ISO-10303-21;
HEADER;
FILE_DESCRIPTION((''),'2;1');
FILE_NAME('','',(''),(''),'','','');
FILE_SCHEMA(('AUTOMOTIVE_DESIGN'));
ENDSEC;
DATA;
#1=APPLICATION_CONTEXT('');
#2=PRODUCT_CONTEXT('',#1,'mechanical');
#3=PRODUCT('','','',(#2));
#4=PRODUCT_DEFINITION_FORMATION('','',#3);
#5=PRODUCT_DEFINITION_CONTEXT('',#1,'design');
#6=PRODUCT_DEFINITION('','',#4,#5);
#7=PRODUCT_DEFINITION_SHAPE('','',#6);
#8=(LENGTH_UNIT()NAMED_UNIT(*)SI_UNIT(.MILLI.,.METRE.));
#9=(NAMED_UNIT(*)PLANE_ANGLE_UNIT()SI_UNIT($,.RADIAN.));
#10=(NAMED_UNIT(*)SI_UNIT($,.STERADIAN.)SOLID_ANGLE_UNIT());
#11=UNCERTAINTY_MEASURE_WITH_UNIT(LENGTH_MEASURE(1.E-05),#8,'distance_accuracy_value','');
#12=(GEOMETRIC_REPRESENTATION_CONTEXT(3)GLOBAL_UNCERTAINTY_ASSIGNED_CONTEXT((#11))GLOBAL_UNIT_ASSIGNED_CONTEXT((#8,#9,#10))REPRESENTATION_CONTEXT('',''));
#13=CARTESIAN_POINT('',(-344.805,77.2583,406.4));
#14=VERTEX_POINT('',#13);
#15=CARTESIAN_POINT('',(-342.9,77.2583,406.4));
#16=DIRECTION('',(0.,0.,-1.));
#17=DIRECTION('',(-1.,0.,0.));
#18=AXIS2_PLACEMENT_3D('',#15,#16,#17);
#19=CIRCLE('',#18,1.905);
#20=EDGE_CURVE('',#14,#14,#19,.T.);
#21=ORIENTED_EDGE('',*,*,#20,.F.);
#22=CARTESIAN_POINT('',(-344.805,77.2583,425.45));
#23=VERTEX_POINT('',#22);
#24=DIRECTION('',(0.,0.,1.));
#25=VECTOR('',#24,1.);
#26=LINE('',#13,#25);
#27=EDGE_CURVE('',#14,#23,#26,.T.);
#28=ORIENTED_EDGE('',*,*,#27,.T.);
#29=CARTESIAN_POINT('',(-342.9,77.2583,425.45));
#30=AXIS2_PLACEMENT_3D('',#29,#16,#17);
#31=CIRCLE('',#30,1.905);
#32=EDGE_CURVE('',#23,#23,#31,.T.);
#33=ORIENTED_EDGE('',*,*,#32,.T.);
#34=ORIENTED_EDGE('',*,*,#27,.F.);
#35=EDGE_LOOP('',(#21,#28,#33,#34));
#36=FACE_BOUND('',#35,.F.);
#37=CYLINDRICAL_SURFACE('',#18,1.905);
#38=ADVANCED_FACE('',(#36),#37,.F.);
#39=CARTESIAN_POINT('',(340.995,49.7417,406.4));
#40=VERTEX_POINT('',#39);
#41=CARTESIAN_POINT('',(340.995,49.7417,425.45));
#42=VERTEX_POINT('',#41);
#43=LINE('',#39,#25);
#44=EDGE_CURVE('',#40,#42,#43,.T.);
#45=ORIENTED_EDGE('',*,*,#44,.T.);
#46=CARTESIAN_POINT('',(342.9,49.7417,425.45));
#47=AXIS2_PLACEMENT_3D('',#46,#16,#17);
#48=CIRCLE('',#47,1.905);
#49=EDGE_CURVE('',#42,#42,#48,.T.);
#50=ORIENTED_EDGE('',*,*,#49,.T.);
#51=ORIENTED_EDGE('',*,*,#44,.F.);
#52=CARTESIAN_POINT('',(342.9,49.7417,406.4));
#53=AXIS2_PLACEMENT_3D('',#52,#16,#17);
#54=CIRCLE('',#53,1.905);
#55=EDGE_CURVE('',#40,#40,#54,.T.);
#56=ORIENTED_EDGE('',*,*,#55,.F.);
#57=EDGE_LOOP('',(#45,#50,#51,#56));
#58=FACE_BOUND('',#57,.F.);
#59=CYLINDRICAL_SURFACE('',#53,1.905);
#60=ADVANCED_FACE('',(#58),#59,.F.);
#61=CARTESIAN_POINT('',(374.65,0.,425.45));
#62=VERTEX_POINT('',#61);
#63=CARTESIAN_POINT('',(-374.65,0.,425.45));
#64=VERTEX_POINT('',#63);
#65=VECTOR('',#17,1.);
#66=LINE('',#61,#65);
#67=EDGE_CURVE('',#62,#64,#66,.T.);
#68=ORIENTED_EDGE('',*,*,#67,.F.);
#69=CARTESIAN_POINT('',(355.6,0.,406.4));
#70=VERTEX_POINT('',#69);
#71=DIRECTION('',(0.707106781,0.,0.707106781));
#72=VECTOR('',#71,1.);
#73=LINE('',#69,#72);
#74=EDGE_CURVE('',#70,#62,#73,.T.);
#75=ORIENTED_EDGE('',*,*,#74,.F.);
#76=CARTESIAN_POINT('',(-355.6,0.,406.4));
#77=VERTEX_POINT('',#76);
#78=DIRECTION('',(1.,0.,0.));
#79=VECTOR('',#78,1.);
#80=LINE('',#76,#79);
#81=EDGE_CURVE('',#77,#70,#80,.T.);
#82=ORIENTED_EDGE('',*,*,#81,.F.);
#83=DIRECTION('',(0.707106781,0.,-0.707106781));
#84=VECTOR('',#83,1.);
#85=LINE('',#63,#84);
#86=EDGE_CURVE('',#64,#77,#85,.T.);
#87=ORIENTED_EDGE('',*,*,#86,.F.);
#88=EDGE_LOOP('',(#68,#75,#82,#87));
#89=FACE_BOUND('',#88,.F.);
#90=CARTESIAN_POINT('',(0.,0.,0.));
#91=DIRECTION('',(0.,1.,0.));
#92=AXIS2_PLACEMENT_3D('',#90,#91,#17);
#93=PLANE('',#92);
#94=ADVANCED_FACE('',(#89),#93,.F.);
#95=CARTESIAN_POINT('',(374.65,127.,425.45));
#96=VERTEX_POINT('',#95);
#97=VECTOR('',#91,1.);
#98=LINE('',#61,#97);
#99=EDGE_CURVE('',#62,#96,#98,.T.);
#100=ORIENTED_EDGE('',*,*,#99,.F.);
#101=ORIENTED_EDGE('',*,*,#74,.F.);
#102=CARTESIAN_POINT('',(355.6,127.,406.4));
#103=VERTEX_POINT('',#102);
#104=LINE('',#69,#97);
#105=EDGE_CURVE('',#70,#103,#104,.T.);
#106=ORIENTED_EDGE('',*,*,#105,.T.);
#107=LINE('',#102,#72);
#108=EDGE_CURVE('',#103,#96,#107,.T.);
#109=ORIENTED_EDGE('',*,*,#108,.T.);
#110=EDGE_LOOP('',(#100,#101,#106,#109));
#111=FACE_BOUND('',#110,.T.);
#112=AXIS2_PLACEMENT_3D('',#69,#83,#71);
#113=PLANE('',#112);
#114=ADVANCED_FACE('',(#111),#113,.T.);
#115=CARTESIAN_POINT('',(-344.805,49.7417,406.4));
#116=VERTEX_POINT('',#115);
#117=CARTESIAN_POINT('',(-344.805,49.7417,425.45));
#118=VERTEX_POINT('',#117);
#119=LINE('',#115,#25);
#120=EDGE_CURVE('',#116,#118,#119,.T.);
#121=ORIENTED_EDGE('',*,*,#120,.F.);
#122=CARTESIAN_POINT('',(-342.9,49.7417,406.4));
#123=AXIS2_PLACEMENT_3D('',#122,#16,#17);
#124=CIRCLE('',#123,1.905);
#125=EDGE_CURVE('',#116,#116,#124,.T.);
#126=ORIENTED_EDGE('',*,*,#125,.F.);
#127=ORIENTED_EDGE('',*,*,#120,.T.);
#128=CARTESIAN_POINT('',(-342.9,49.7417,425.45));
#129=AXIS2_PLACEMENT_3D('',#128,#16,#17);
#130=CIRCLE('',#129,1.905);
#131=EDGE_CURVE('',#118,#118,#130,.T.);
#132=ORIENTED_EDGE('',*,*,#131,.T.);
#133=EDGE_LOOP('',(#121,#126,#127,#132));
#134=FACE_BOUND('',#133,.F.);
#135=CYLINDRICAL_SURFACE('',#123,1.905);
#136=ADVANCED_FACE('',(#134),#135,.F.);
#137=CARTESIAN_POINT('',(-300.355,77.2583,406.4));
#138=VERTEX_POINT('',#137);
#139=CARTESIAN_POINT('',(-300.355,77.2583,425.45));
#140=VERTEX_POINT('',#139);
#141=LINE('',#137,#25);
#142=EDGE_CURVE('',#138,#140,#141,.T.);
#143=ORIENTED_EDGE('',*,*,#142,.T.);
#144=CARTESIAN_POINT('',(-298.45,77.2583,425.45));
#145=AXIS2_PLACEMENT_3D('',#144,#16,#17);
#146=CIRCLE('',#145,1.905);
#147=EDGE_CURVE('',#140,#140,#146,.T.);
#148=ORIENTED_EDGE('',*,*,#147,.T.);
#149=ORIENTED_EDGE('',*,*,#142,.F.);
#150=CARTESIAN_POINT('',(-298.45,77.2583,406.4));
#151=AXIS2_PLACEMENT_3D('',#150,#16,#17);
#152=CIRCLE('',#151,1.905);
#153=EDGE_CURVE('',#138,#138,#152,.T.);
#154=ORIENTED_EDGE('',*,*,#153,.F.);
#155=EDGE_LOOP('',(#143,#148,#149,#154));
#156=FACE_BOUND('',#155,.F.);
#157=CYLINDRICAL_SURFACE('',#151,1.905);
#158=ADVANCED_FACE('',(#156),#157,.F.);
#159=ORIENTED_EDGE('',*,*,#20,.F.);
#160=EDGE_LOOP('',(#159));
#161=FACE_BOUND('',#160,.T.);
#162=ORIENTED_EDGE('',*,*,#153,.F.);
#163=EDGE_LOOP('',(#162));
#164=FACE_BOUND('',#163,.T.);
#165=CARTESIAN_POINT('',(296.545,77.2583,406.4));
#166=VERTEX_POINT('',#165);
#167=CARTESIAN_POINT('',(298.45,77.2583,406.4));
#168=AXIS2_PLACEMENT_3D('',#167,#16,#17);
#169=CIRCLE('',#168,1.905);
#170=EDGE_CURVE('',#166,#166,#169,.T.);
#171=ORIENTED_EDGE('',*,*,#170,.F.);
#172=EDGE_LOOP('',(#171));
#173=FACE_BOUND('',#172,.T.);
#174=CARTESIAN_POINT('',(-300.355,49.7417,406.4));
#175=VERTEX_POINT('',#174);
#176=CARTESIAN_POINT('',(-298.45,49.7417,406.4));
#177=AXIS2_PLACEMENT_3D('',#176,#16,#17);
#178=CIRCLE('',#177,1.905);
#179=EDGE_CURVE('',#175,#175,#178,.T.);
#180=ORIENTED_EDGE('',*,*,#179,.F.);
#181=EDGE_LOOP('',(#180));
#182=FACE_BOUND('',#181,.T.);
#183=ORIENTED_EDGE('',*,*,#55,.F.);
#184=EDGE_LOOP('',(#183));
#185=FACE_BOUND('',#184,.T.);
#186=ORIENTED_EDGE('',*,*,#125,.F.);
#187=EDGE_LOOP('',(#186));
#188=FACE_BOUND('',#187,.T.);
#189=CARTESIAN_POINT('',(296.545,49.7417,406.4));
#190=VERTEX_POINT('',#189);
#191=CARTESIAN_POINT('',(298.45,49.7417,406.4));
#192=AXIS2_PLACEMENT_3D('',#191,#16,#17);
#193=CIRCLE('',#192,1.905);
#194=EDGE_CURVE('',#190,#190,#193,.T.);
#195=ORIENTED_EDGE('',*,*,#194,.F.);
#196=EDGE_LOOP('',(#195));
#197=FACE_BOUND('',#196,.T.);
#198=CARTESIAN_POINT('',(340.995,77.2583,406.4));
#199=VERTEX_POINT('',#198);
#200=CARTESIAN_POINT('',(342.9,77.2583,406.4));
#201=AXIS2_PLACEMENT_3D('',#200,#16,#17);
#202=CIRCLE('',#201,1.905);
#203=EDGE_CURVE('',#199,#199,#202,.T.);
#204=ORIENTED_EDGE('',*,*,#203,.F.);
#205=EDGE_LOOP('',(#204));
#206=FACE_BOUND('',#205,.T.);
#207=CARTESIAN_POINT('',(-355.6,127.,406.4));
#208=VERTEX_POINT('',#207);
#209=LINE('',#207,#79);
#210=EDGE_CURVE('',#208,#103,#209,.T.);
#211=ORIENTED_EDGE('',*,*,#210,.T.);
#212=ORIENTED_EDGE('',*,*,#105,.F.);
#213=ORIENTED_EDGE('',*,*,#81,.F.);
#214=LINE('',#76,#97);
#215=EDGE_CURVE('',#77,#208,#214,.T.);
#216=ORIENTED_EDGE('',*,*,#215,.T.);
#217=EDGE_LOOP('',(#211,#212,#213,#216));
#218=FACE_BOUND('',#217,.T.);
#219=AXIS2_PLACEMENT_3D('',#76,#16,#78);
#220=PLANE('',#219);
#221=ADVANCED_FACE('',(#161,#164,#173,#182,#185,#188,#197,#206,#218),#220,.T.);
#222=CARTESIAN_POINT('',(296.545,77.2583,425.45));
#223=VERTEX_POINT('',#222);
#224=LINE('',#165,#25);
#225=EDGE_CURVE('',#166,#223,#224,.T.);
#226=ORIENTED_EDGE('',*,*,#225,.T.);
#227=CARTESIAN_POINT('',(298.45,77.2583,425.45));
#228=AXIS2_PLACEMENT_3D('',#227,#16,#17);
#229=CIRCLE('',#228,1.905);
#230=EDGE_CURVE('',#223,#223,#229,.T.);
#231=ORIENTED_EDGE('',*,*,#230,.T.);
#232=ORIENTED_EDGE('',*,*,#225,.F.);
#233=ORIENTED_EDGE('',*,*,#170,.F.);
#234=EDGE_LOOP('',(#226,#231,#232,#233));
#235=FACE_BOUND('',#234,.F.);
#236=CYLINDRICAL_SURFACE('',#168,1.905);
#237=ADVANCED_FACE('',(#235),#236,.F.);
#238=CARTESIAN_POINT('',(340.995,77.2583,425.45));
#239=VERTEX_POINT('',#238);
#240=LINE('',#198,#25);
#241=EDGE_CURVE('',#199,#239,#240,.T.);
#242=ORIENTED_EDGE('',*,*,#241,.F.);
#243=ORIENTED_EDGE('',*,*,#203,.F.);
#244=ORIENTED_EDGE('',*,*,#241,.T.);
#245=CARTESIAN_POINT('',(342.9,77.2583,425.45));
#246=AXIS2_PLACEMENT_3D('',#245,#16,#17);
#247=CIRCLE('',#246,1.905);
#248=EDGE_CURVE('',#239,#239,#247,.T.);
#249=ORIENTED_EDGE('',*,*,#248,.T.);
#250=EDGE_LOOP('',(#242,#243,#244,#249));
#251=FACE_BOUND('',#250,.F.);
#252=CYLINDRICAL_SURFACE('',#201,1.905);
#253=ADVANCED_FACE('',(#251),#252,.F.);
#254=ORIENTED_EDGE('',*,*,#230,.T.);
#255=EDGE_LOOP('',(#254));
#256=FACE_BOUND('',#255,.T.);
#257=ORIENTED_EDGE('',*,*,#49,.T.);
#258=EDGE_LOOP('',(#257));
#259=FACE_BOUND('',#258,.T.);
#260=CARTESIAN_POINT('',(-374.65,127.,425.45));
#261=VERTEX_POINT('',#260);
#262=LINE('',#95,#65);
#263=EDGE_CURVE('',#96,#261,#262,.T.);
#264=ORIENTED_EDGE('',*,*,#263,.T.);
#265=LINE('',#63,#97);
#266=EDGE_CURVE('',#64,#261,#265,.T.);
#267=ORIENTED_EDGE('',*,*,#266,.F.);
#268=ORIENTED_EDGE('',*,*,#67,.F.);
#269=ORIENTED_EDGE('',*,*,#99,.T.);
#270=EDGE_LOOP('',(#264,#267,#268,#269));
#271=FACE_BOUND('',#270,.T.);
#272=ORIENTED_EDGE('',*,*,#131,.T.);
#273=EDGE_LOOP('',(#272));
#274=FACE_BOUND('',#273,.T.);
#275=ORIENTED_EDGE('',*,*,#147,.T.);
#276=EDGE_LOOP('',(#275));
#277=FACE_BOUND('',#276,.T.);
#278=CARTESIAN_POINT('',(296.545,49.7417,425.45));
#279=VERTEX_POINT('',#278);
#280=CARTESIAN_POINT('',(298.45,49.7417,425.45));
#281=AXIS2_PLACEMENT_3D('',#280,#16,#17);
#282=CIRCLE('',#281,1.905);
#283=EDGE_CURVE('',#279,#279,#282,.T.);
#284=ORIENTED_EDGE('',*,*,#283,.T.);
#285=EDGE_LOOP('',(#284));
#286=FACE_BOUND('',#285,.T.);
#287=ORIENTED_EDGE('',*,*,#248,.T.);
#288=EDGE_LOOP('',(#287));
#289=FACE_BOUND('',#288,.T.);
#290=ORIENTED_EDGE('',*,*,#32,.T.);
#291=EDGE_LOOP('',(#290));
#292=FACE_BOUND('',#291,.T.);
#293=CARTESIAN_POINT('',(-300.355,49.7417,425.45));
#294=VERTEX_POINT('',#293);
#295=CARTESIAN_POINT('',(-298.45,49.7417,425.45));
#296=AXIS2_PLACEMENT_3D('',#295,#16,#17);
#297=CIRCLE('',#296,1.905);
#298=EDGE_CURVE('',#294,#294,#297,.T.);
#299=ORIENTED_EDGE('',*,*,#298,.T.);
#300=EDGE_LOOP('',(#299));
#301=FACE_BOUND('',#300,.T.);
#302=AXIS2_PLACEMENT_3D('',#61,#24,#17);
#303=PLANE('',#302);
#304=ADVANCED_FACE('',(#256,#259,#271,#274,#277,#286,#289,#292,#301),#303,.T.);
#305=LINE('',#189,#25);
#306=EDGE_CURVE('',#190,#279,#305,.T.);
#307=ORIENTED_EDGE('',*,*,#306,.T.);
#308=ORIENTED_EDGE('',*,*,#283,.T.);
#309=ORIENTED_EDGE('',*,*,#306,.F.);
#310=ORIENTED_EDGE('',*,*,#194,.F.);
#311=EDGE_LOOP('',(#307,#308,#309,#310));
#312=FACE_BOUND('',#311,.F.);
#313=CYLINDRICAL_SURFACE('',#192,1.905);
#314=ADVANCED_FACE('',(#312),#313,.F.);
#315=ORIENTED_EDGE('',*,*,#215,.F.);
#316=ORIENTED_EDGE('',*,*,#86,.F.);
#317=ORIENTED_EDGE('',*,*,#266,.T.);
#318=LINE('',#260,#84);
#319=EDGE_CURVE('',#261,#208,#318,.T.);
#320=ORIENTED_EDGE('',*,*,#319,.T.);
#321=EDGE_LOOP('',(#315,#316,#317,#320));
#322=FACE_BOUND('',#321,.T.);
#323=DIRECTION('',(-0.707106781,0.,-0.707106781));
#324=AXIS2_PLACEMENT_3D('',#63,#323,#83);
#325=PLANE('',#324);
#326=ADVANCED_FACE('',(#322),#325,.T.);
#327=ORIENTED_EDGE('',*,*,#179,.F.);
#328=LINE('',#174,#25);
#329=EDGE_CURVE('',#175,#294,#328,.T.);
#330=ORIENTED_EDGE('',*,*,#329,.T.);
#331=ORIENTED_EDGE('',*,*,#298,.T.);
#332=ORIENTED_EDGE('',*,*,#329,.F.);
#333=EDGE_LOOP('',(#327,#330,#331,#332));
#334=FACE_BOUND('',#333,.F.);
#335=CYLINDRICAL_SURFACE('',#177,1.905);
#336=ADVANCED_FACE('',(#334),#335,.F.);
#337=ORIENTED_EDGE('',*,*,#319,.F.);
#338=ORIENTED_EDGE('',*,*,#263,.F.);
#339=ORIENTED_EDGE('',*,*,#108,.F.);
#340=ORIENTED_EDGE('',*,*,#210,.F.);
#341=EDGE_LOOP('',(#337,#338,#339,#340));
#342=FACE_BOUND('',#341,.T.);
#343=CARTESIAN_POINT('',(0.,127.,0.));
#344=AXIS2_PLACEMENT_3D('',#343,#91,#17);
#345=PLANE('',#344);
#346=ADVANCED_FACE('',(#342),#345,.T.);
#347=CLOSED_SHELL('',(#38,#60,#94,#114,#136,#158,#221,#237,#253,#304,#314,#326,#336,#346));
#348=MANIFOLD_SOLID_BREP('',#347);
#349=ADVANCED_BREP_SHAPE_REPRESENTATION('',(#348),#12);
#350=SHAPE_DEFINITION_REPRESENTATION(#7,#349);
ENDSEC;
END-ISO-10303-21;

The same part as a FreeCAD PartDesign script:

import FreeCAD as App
import Part
import Sketcher
Q = App.Units.Quantity


def add_polygon(sketch, points):
    """Adds a closed chain of lines whose ends are joined by coincident constraints."""
    first, n = sketch.GeometryCount, len(points)
    for a, b in zip(points, points[1:] + points[:1]):
        sketch.addGeometry(Part.LineSegment(App.Vector(*a, 0), App.Vector(*b, 0)), False)
    for i in range(n):
        sketch.addConstraint(Sketcher.Constraint("Coincident", first + i, 2, first + (i + 1) % n, 1))

doc = App.newDocument("Part")
body = doc.addObject("PartDesign::Body", "Body")

# Sketch on XZ plane
sketch1 = doc.addObject("Sketcher::SketchObject", "Sketch")
body.addObject(sketch1)
sketch1.AttachmentSupport = (doc.XZ_Plane, [""])
sketch1.MapMode = "FlatFace"
add_polygon(sketch1, [(356, 406), (-356, 406), (-375, 425), (375, 425)])  # lines 0-3
sketch1.addConstraint([
    Sketcher.Constraint("Horizontal", 0),
    Sketcher.Constraint("Horizontal", 2),
    Sketcher.Constraint("Perpendicular", 1, 3),
    Sketcher.Constraint("Equal", 1, 3),
    Sketcher.Constraint("DistanceX", 0, 2, 0, 1, Q("28 in")),
    Sketcher.Constraint("DistanceX", 1, 2, 0, 2, Q("0.75 in")),
    Sketcher.Constraint("DistanceX", 0, 2, -1, 1, Q("14 in")),
    Sketcher.Constraint("DistanceY", -1, 1, 0, 2, Q("16 in")),
])
pad1 = doc.addObject("PartDesign::Pad", "Pad")
body.addObject(pad1)
pad1.Profile = sketch1
pad1.Length = Q("5 in")
pad1.Reversed = True

# Sketch on XY plane
sketch2 = doc.addObject("Sketcher::SketchObject", "Sketch001")
body.addObject(sketch2)
sketch2.AttachmentSupport = (doc.XY_Plane, [""])
sketch2.MapMode = "FlatFace"
sketch2.AttachmentOffset = App.Placement(App.Vector(0, 0, 16 * 25.4), App.Rotation())
sketch2.addGeometry([
    Part.Circle(App.Vector(342.9, 77.3, 0), App.Vector(0, 0, 1), 1.9),  # 0
    Part.Circle(App.Vector(298.4, 77.3, 0), App.Vector(0, 0, 1), 1.9),  # 1
    Part.Circle(App.Vector(342.9, 49.7, 0), App.Vector(0, 0, 1), 1.9),  # 2
    Part.Circle(App.Vector(298.4, 49.7, 0), App.Vector(0, 0, 1), 1.9),  # 3
    Part.Circle(App.Vector(-342.9, 77.3, 0), App.Vector(0, 0, 1), 1.9),  # 4
    Part.Circle(App.Vector(-298.4, 77.3, 0), App.Vector(0, 0, 1), 1.9),  # 5
    Part.Circle(App.Vector(-342.9, 49.7, 0), App.Vector(0, 0, 1), 1.9),  # 6
    Part.Circle(App.Vector(-298.4, 49.7, 0), App.Vector(0, 0, 1), 1.9),  # 7
], False)
sketch2.addConstraint([
    Sketcher.Constraint("Equal", 0, 1),
    Sketcher.Constraint("Equal", 1, 2),
    Sketcher.Constraint("Equal", 2, 3),
    Sketcher.Constraint("Equal", 3, 4),
    Sketcher.Constraint("Equal", 4, 5),
    Sketcher.Constraint("Equal", 5, 6),
    Sketcher.Constraint("Equal", 6, 7),
    Sketcher.Constraint("Symmetric", 0, 3, 4, 3, -2),
    Sketcher.Constraint("Symmetric", 1, 3, 5, 3, -2),
    Sketcher.Constraint("Symmetric", 2, 3, 6, 3, -2),
    Sketcher.Constraint("Symmetric", 3, 3, 7, 3, -2),
    Sketcher.Constraint("Horizontal", 0, 3, 1, 3),
    Sketcher.Constraint("Horizontal", 2, 3, 3, 3),
    Sketcher.Constraint("Vertical", 0, 3, 2, 3),
    Sketcher.Constraint("Vertical", 1, 3, 3, 3),
    Sketcher.Constraint("Diameter", 0, Q("0.15 in")),
    Sketcher.Constraint("DistanceX", 1, 3, 0, 3, Q("1.75 in")),
    Sketcher.Constraint("DistanceX", 4, 3, 0, 3, Q("27 in")),
    Sketcher.Constraint("DistanceY", 2, 3, 0, 3, Q("27.5166 mm")),
    Sketcher.Constraint("DistanceY", -1, 1, 0, 3, Q("77.2583 mm")),
])
pocket1 = doc.addObject("PartDesign::Pocket", "Pocket")
body.addObject(pocket1)
pocket1.Profile = sketch2
pocket1.Length = Q("5 in")
pocket1.Reversed = True

doc.recompute()
